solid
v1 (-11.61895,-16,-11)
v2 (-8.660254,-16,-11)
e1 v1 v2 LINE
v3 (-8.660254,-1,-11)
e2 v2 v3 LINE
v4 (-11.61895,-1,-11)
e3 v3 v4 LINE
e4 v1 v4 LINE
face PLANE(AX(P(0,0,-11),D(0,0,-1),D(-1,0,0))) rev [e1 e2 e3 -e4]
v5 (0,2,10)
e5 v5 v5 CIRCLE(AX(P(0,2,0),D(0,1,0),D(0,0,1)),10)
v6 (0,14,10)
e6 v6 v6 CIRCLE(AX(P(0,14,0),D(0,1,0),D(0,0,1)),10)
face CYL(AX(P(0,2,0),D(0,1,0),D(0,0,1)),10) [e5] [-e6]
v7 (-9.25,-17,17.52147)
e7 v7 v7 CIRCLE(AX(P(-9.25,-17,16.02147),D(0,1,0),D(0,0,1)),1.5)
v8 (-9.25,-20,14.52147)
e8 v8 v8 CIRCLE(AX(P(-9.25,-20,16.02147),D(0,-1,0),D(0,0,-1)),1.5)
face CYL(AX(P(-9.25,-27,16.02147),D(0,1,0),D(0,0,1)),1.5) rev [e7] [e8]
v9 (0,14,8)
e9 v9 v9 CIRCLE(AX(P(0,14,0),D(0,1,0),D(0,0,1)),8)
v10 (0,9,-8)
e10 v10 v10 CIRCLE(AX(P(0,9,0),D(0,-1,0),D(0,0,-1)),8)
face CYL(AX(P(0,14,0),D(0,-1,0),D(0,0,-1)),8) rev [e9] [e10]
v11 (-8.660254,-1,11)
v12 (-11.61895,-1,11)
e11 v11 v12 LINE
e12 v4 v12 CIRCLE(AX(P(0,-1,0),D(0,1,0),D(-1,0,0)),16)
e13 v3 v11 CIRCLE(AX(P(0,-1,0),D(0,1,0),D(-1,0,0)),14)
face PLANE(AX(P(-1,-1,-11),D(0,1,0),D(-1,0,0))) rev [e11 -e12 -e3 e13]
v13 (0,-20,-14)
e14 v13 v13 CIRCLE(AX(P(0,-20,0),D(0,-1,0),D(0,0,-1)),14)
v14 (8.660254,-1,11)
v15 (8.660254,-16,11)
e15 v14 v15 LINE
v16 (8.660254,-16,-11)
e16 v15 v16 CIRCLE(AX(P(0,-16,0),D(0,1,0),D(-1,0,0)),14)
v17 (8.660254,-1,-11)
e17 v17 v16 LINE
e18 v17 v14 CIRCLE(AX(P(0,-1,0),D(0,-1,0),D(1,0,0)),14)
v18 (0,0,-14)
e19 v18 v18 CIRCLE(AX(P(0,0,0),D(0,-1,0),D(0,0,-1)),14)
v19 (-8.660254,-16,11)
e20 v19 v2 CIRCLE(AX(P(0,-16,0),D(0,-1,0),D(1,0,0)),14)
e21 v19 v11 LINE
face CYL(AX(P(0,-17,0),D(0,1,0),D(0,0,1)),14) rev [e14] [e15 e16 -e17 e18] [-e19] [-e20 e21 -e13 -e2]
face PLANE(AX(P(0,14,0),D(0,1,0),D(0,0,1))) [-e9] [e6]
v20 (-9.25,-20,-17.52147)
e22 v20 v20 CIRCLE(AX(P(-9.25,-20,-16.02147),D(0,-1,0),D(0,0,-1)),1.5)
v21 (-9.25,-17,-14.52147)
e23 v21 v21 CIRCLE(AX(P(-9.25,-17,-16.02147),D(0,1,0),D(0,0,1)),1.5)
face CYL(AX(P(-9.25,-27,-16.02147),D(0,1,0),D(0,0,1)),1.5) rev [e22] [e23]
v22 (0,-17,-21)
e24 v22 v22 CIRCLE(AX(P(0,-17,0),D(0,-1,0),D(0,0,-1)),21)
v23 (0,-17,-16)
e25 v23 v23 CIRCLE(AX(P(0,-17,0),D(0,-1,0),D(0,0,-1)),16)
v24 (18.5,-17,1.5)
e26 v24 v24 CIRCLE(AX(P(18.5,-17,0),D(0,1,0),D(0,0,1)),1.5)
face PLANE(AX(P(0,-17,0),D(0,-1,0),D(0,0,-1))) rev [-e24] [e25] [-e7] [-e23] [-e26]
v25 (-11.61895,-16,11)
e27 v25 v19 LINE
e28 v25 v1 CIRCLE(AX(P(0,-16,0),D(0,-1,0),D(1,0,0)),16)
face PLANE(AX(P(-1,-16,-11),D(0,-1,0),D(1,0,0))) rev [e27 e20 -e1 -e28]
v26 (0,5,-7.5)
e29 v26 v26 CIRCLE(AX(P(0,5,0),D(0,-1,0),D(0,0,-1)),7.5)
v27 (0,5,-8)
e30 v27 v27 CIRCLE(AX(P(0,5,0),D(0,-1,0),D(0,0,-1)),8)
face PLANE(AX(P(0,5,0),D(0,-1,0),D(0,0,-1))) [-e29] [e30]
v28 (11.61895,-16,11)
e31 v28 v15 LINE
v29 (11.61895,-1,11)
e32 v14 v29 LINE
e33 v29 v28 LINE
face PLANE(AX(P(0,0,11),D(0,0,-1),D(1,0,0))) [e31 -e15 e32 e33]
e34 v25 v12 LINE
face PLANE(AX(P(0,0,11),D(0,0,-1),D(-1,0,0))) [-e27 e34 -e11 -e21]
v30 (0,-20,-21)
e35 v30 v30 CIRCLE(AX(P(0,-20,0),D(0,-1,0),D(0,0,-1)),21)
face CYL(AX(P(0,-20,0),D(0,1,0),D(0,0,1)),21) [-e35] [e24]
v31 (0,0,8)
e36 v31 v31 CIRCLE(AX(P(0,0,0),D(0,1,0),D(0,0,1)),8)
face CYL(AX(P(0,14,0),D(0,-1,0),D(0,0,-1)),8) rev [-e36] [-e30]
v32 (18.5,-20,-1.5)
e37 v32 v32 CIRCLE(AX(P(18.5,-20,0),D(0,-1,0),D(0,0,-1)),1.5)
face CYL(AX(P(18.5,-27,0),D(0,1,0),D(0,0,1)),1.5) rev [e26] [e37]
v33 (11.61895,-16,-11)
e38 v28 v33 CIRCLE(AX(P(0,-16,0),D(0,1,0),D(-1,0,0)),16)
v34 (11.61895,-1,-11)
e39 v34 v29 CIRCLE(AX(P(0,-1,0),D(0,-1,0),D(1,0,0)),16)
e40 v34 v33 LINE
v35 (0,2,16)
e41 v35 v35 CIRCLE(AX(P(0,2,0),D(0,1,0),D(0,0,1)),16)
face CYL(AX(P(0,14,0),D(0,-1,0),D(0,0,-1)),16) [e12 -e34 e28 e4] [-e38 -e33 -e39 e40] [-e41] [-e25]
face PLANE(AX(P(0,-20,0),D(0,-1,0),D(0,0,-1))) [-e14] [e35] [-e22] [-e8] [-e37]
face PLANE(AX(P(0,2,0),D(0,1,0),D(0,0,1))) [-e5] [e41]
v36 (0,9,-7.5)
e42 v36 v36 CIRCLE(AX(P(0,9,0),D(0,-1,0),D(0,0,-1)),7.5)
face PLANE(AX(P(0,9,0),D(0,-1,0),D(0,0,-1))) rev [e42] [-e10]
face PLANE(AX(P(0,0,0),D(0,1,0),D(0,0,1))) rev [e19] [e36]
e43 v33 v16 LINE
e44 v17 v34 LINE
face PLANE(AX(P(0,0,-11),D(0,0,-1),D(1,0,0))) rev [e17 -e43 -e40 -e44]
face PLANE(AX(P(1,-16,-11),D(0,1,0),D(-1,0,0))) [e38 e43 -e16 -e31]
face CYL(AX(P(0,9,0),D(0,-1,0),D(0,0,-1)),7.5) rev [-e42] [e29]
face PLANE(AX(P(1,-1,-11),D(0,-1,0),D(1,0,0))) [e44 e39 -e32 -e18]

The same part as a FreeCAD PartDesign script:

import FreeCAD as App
import Part
import Sketcher
from FreeCAD import Vector
Q = App.Units.Quantity


def add_polygon(sketch, points):
    """Adds a closed chain of lines whose ends are joined by coincident constraints."""
    first, n = sketch.GeometryCount, len(points)
    for a, b in zip(points, points[1:] + points[:1]):
        sketch.addGeometry(Part.LineSegment(App.Vector(*a, 0), App.Vector(*b, 0)), False)
    for i in range(n):
        sketch.addConstraint(Sketcher.Constraint("Coincident", first + i, 2, first + (i + 1) % n, 1))

doc = App.newDocument("Part")
body = doc.addObject("PartDesign::Body", "Body")

# Sketch on XZ plane
sketch1 = doc.addObject("Sketcher::SketchObject", "Sketch")
body.addObject(sketch1)
sketch1.AttachmentSupport = (doc.XZ_Plane, [""])
sketch1.MapMode = "FlatFace"
sketch1.addGeometry(Part.Circle(Vector(0, 0, 0), Vector(0, 0, 1), 16), False)
sketch1.addGeometry(Part.Circle(Vector(0, 0, 0), Vector(0, 0, 1), 8), False)
sketch1.addConstraint(Sketcher.Constraint("Coincident", 0, 3, -1, 1))
sketch1.addConstraint(Sketcher.Constraint("Coincident", 1, 3, -1, 1))
sketch1.addConstraint(Sketcher.Constraint("Diameter", 0, Q("32 mm")))
sketch1.addConstraint(Sketcher.Constraint("Diameter", 1, Q("16 mm")))
pad1 = doc.addObject("PartDesign::Pad", "Pad")
body.addObject(pad1)
pad1.Profile = sketch1
pad1.Length = 14
pad1.Reversed = True

# Sketch on XZ plane
sketch2 = doc.addObject("Sketcher::SketchObject", "Sketch001")
body.addObject(sketch2)
sketch2.AttachmentSupport = (doc.XZ_Plane, [""])
sketch2.MapMode = "FlatFace"
sketch2.AttachmentOffset = App.Placement(Vector(0, 0, -14), App.Rotation())
sketch2.addGeometry(Part.Circle(Vector(0, 0, 0), Vector(0, 0, 1), 20), False)
sketch2.addGeometry(Part.Circle(Vector(0, 0, 0), Vector(0, 0, 1), 10), False)
sketch2.addConstraint(Sketcher.Constraint("Coincident", 0, 3, -1, 1))
sketch2.addConstraint(Sketcher.Constraint("Coincident", 1, 3, -1, 1))
sketch2.addConstraint(Sketcher.Constraint("Diameter", 0, Q("40 mm")))
sketch2.addConstraint(Sketcher.Constraint("Diameter", 1, Q("20 mm")))
pocket1 = doc.addObject("PartDesign::Pocket", "Pocket")
body.addObject(pocket1)
pocket1.Profile = sketch2
pocket1.Length = 12
pocket1.Reversed = True

# Sketch on XZ plane
sketch3 = doc.addObject("Sketcher::SketchObject", "Sketch002")
body.addObject(sketch3)
sketch3.AttachmentSupport = (doc.XZ_Plane, [""])
sketch3.MapMode = "FlatFace"
sketch3.AttachmentOffset = App.Placement(Vector(0, 0, -5), App.Rotation())
sketch3.addGeometry(Part.Circle(Vector(0, 0, 0), Vector(0, 0, 1), 9.5), False)
sketch3.addGeometry(Part.Circle(Vector(0, 0, 0), Vector(0, 0, 1), 7.5), False)
sketch3.addConstraint(Sketcher.Constraint("Coincident", 0, 3, -1, 1))
sketch3.addConstraint(Sketcher.Constraint("Coincident", 1, 3, -1, 1))
sketch3.addConstraint(Sketcher.Constraint("Diameter", 0, Q("19 mm")))
sketch3.addConstraint(Sketcher.Constraint("Diameter", 1, Q("15 mm")))
pad2 = doc.addObject("PartDesign::Pad", "Pad001")
body.addObject(pad2)
pad2.Profile = sketch3
pad2.Length = 4
pad2.Reversed = True

# Sketch on XZ plane
sketch4 = doc.addObject("Sketcher::SketchObject", "Sketch003")
body.addObject(sketch4)
sketch4.AttachmentSupport = (doc.XZ_Plane, [""])
sketch4.MapMode = "FlatFace"
sketch4.AttachmentOffset = App.Placement(Vector(0, 0, 17), App.Rotation())
sketch4.addGeometry(Part.Circle(Vector(0, 0, 0), Vector(0, 0, 1), 16), False)
sketch4.addGeometry(Part.Circle(Vector(0, 0, 0), Vector(0, 0, 1), 14), False)
sketch4.addConstraint(Sketcher.Constraint("Coincident", 0, 3, -1, 1))
sketch4.addConstraint(Sketcher.Constraint("Coincident", 1, 3, -1, 1))
sketch4.addConstraint(Sketcher.Constraint("Diameter", 0, Q("32 mm")))
sketch4.addConstraint(Sketcher.Constraint("Diameter", 1, Q("28 mm")))
pad3 = doc.addObject("PartDesign::Pad", "Pad002")
body.addObject(pad3)
pad3.Profile = sketch4
pad3.Length = 17
pad3.Reversed = True

# Sketch on XZ plane
sketch5 = doc.addObject("Sketcher::SketchObject", "Sketch004")
body.addObject(sketch5)
sketch5.AttachmentSupport = (doc.XZ_Plane, [""])
sketch5.MapMode = "FlatFace"
sketch5.AttachmentOffset = App.Placement(Vector(0, 0, 20), App.Rotation())
sketch5.addGeometry(Part.Circle(Vector(0, 0, 0), Vector(0, 0, 1), 21), False)
sketch5.addGeometry(Part.Circle(Vector(0, 0, 0), Vector(0, 0, 1), 14), False)
sketch5.addConstraint(Sketcher.Constraint("Coincident", 0, 3, -1, 1))
sketch5.addConstraint(Sketcher.Constraint("Coincident", 1, 3, -1, 1))
sketch5.addConstraint(Sketcher.Constraint("Diameter", 0, Q("42 mm")))
sketch5.addConstraint(Sketcher.Constraint("Diameter", 1, Q("28 mm")))
pad4 = doc.addObject("PartDesign::Pad", "Pad003")
body.addObject(pad4)
pad4.Profile = sketch5
pad4.Length = 3
pad4.Reversed = True

# Sketch on XZ plane
sketch6 = doc.addObject("Sketcher::SketchObject", "Sketch005")
body.addObject(sketch6)
sketch6.AttachmentSupport = (doc.XZ_Plane, [""])
sketch6.MapMode = "FlatFace"
sketch6.AttachmentOffset = App.Placement(Vector(0, 0, 17), App.Rotation())
sketch6.addGeometry(Part.Circle(Vector(18.5, 0, 0), Vector(0, 0, 1), 1.5), False)
sketch6.addGeometry(Part.Circle(Vector(-9.25, 16.02147, 0), Vector(0, 0, 1), 1.5), False)
sketch6.addGeometry(Part.Circle(Vector(-9.25, -16.02147, 0), Vector(0, 0, 1), 1.5), False)
sketch6.addConstraint(Sketcher.Constraint("Equal", 0, 1))
sketch6.addConstraint(Sketcher.Constraint("Equal", 1, 2))
sketch6.addConstraint(Sketcher.Constraint("Symmetric", 1, 3, 2, 3, -1))
sketch6.addConstraint(Sketcher.Constraint("PointOnObject", 0, 3, -1))
sketch6.addConstraint(Sketcher.Constraint("Diameter", 0, Q("3 mm")))
sketch6.addConstraint(Sketcher.Constraint("DistanceX", -1, 1, 0, 3, Q("18.5 mm")))
sketch6.addConstraint(Sketcher.Constraint("DistanceX", 1, 3, -1, 1, Q("9.25 mm")))
sketch6.addConstraint(Sketcher.Constraint("DistanceY", -1, 1, 1, 3, Q("16.02147 mm")))
pocket2 = doc.addObject("PartDesign::Pocket", "Pocket001")
body.addObject(pocket2)
pocket2.Profile = sketch6
pocket2.Length = 10
pocket2.Reversed = True

# Sketch on XY plane
sketch7 = doc.addObject("Sketcher::SketchObject", "Sketch006")
body.addObject(sketch7)
sketch7.AttachmentSupport = (doc.XY_Plane, [""])
sketch7.MapMode = "FlatFace"
add_polygon(sketch7, [(-16, -1), (-16, -16), (-1, -16), (-1, -1)])  # lines 0-3
sketch7.addConstraint(Sketcher.Constraint("Vertical", 0))
sketch7.addConstraint(Sketcher.Constraint("Horizontal", 1))
sketch7.addConstraint(Sketcher.Constraint("Vertical", 2))
sketch7.addConstraint(Sketcher.Constraint("Horizontal", 3))
sketch7.addConstraint(Sketcher.Constraint("Equal", 3, 0))
sketch7.addConstraint(Sketcher.Constraint("DistanceX", 1, 1, 1, 2, Q("15 mm")))
sketch7.addConstraint(Sketcher.Constraint("DistanceX", 0, 2, -1, 1, Q("16 mm")))
sketch7.addConstraint(Sketcher.Constraint("DistanceY", 0, 2, -1, 1, Q("16 mm")))
pocket3 = doc.addObject("PartDesign::Pocket", "Pocket002")
body.addObject(pocket3)
pocket3.Profile = sketch7
pocket3.Length = 22
pocket3.Midplane = True
doc.recompute()

mirrored = doc.addObject("PartDesign::Mirrored", "Mirrored")
body.addObject(mirrored)
mirrored.Originals = [pocket3]
mirrored.MirrorPlane = (doc.YZ_Plane, [""])
body.Tip = mirrored

doc.recompute()
